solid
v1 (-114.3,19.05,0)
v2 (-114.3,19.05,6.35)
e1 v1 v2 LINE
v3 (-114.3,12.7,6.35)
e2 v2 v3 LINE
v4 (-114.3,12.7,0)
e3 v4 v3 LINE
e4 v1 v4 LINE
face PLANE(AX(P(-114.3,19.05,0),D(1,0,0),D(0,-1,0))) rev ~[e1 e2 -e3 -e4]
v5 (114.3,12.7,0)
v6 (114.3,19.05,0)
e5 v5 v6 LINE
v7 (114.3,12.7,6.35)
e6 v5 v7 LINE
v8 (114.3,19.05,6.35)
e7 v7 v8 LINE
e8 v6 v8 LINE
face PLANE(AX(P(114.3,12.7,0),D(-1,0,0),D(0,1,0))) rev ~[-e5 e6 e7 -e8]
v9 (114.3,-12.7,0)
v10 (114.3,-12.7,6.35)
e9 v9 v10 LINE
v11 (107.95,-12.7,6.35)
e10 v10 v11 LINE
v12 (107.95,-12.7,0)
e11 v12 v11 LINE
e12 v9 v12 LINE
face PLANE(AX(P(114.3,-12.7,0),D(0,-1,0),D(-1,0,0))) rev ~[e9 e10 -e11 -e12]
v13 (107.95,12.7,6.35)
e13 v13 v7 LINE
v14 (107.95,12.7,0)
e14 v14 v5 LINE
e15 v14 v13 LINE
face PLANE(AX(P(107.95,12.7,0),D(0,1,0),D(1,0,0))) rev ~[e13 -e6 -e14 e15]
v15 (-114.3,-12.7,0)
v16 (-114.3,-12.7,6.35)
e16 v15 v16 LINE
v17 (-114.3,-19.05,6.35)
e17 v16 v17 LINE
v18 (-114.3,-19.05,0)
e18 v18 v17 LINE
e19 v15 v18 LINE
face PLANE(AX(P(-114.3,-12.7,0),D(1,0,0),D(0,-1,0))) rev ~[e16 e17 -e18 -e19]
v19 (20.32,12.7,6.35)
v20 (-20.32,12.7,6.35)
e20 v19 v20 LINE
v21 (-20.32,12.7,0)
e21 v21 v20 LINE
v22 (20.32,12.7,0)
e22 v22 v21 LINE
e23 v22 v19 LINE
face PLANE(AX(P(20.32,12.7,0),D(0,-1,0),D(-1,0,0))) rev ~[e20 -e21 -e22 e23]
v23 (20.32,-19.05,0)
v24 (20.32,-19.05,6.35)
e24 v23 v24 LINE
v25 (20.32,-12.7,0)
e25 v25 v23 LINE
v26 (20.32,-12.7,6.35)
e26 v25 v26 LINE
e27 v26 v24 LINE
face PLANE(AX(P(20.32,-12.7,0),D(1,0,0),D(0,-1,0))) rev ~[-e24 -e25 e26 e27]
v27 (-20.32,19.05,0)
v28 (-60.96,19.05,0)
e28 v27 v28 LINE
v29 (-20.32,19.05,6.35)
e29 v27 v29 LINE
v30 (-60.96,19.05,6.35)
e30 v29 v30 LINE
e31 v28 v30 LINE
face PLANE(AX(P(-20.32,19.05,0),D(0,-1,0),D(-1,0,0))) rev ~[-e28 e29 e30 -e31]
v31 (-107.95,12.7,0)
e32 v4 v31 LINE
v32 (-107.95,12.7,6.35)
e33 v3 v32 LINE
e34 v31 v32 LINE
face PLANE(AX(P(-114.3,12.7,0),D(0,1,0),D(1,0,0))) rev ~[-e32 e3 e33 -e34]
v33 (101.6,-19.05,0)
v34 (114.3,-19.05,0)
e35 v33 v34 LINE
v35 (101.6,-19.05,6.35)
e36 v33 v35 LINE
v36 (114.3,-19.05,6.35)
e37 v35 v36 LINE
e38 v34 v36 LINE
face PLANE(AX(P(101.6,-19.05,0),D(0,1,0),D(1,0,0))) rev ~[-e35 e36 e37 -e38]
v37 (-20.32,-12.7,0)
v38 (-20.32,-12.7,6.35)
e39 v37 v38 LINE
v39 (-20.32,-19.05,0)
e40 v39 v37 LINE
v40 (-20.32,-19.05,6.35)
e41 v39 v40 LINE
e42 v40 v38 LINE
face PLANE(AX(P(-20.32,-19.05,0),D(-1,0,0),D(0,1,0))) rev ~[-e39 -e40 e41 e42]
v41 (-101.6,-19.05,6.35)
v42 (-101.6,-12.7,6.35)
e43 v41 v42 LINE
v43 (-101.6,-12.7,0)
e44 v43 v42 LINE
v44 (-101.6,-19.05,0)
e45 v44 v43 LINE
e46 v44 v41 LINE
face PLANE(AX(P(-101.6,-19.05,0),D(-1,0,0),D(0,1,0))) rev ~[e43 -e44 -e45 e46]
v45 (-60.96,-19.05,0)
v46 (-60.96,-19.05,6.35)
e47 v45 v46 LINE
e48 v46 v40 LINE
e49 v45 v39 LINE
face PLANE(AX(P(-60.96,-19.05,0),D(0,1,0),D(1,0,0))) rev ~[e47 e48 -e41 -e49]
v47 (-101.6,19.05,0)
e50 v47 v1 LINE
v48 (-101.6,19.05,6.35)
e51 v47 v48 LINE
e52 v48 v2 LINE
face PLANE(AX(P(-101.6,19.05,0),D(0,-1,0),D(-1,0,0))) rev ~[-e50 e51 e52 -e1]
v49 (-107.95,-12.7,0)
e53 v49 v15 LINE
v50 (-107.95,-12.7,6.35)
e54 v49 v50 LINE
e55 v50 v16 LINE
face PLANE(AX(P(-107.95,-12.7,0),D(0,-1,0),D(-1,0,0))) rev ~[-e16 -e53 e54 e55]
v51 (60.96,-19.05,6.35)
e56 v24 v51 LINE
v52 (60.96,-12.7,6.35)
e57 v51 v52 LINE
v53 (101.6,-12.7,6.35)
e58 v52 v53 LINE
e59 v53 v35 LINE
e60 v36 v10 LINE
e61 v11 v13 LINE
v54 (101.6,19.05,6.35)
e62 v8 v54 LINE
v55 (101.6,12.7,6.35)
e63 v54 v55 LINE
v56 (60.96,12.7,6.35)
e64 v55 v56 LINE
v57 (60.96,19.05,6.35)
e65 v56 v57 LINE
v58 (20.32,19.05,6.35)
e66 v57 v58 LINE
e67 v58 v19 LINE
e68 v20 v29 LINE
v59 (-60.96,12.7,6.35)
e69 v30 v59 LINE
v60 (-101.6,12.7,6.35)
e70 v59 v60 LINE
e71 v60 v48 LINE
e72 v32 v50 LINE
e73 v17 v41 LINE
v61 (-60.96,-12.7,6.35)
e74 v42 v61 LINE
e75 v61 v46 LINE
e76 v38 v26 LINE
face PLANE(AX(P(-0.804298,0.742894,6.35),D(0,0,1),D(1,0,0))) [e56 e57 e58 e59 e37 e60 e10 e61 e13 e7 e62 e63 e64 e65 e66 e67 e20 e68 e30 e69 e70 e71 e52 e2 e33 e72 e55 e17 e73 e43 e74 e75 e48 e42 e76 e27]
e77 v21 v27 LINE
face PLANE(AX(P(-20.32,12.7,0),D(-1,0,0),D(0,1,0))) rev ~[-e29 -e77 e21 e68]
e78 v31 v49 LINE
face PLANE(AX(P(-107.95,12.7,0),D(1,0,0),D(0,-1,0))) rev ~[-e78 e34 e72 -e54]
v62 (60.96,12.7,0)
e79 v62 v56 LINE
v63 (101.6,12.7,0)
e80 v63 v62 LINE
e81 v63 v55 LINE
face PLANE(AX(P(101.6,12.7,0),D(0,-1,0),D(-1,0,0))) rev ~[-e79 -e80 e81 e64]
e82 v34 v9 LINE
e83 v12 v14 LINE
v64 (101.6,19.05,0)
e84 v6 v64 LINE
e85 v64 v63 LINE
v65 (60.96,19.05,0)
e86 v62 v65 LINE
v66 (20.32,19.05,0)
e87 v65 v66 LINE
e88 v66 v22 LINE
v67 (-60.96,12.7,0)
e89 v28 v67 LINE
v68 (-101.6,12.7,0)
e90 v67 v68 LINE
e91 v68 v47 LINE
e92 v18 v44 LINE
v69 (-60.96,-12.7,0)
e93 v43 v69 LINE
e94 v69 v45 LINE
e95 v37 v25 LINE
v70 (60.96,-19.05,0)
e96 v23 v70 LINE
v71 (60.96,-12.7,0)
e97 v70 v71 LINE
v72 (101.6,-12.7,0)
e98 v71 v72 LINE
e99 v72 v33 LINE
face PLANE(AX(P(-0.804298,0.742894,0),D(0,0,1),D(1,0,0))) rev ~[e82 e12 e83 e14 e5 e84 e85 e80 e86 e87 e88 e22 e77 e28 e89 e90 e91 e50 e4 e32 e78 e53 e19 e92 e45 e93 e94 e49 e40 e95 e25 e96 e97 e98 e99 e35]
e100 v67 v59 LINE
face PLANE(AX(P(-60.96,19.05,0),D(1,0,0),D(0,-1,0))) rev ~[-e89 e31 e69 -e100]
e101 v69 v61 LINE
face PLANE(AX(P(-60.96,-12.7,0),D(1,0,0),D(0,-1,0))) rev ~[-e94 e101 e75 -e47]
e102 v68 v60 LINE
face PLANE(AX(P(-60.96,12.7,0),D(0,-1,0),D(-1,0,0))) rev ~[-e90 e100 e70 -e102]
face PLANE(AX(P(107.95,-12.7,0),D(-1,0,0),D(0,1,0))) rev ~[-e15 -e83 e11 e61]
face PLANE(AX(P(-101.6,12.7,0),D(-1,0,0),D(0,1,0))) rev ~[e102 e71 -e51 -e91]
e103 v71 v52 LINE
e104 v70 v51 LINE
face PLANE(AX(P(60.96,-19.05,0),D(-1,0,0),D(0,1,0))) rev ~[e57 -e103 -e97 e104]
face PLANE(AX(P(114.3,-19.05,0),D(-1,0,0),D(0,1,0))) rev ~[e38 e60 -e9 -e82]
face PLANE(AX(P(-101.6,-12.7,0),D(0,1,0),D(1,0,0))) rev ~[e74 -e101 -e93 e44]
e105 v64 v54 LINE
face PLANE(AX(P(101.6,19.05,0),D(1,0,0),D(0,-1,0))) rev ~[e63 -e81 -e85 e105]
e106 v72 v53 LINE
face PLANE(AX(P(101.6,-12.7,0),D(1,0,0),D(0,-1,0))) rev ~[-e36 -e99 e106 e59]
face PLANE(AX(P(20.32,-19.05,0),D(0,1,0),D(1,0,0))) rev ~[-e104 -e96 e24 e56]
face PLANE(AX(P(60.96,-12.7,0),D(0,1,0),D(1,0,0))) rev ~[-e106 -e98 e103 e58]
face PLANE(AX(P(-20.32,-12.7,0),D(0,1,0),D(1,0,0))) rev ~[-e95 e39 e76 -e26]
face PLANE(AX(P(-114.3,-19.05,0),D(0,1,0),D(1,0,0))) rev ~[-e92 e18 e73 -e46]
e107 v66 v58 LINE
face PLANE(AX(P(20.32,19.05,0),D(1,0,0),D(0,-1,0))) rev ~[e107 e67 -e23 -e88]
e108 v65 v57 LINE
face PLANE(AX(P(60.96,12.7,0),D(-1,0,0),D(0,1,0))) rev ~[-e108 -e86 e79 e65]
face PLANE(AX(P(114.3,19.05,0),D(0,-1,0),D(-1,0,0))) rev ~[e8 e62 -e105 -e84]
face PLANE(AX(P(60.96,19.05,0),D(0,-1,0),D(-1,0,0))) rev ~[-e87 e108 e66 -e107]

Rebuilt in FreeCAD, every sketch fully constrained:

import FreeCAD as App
import Part
import Sketcher
Q = App.Units.Quantity

doc = App.newDocument("Part")
body = doc.addObject("PartDesign::Body", "Body")

# Sketch on XY plane
sketch1 = doc.addObject("Sketcher::SketchObject", "Sketch")
body.addObject(sketch1)
sketch1.AttachmentSupport = (doc.XY_Plane, [""])
sketch1.MapMode = "FlatFace"
sketch1.addGeometry(Part.LineSegment(App.Vector(-102, 19, 0), App.Vector(-114, 19, 0)), False)
sketch1.addGeometry(Part.LineSegment(App.Vector(-114, 19, 0), App.Vector(-114, 13, 0)), False)
sketch1.addGeometry(Part.LineSegment(App.Vector(-114, 13, 0), App.Vector(-108, 13, 0)), False)
sketch1.addGeometry(Part.LineSegment(App.Vector(-108, 13, 0), App.Vector(-108, -13, 0)), False)
sketch1.addGeometry(Part.LineSegment(App.Vector(-108, -13, 0), App.Vector(-114, -13, 0)), False)
sketch1.addGeometry(Part.LineSegment(App.Vector(-114, -13, 0), App.Vector(-114, -19, 0)), False)
sketch1.addGeometry(Part.LineSegment(App.Vector(-114, -19, 0), App.Vector(-102, -19, 0)), False)
sketch1.addGeometry(Part.LineSegment(App.Vector(-102, -19, 0), App.Vector(-102, -13, 0)), False)
sketch1.addGeometry(Part.LineSegment(App.Vector(-102, -13, 0), App.Vector(-61, -13, 0)), False)
sketch1.addGeometry(Part.LineSegment(App.Vector(-61, -13, 0), App.Vector(-61, -19, 0)), False)
sketch1.addGeometry(Part.LineSegment(App.Vector(-61, -19, 0), App.Vector(-20, -19, 0)), False)
sketch1.addGeometry(Part.LineSegment(App.Vector(-20, -19, 0), App.Vector(-20, -13, 0)), False)
sketch1.addGeometry(Part.LineSegment(App.Vector(-20, -13, 0), App.Vector(20, -13, 0)), False)
sketch1.addGeometry(Part.LineSegment(App.Vector(20, -13, 0), App.Vector(20, -19, 0)), False)
sketch1.addGeometry(Part.LineSegment(App.Vector(20, -19, 0), App.Vector(61, -19, 0)), False)
sketch1.addGeometry(Part.LineSegment(App.Vector(61, -19, 0), App.Vector(61, -13, 0)), False)
sketch1.addGeometry(Part.LineSegment(App.Vector(61, -13, 0), App.Vector(102, -13, 0)), False)
sketch1.addGeometry(Part.LineSegment(App.Vector(102, -13, 0), App.Vector(102, -19, 0)), False)
sketch1.addGeometry(Part.LineSegment(App.Vector(102, -19, 0), App.Vector(114, -19, 0)), False)
sketch1.addGeometry(Part.LineSegment(App.Vector(114, -19, 0), App.Vector(114, -13, 0)), False)
sketch1.addGeometry(Part.LineSegment(App.Vector(114, -13, 0), App.Vector(108, -13, 0)), False)
sketch1.addGeometry(Part.LineSegment(App.Vector(108, -13, 0), App.Vector(108, 13, 0)), False)
sketch1.addGeometry(Part.LineSegment(App.Vector(108, 13, 0), App.Vector(114, 13, 0)), False)
sketch1.addGeometry(Part.LineSegment(App.Vector(114, 13, 0), App.Vector(114, 19, 0)), False)
sketch1.addGeometry(Part.LineSegment(App.Vector(114, 19, 0), App.Vector(102, 19, 0)), False)
sketch1.addGeometry(Part.LineSegment(App.Vector(102, 19, 0), App.Vector(102, 13, 0)), False)
sketch1.addGeometry(Part.LineSegment(App.Vector(102, 13, 0), App.Vector(61, 13, 0)), False)
sketch1.addGeometry(Part.LineSegment(App.Vector(61, 13, 0), App.Vector(61, 19, 0)), False)
sketch1.addGeometry(Part.LineSegment(App.Vector(61, 19, 0), App.Vector(20, 19, 0)), False)
sketch1.addGeometry(Part.LineSegment(App.Vector(20, 19, 0), App.Vector(20, 13, 0)), False)
sketch1.addGeometry(Part.LineSegment(App.Vector(20, 13, 0), App.Vector(-20, 13, 0)), False)
sketch1.addGeometry(Part.LineSegment(App.Vector(-20, 13, 0), App.Vector(-20, 19, 0)), False)
sketch1.addGeometry(Part.LineSegment(App.Vector(-20, 19, 0), App.Vector(-61, 19, 0)), False)
sketch1.addGeometry(Part.LineSegment(App.Vector(-61, 19, 0), App.Vector(-61, 13, 0)), False)
sketch1.addGeometry(Part.LineSegment(App.Vector(-61, 13, 0), App.Vector(-102, 13, 0)), False)
sketch1.addGeometry(Part.LineSegment(App.Vector(-102, 13, 0), App.Vector(-102, 19, 0)), False)
sketch1.addConstraint(Sketcher.Constraint("Coincident", 0, 2, 1, 1))
sketch1.addConstraint(Sketcher.Constraint("Coincident", 1, 2, 2, 1))
sketch1.addConstraint(Sketcher.Constraint("Coincident", 2, 2, 3, 1))
sketch1.addConstraint(Sketcher.Constraint("Coincident", 3, 2, 4, 1))
sketch1.addConstraint(Sketcher.Constraint("Coincident", 4, 2, 5, 1))
sketch1.addConstraint(Sketcher.Constraint("Coincident", 5, 2, 6, 1))
sketch1.addConstraint(Sketcher.Constraint("Coincident", 6, 2, 7, 1))
sketch1.addConstraint(Sketcher.Constraint("Coincident", 7, 2, 8, 1))
sketch1.addConstraint(Sketcher.Constraint("Coincident", 8, 2, 9, 1))
sketch1.addConstraint(Sketcher.Constraint("Coincident", 9, 2, 10, 1))
sketch1.addConstraint(Sketcher.Constraint("Coincident", 10, 2, 11, 1))
sketch1.addConstraint(Sketcher.Constraint("Coincident", 11, 2, 12, 1))
sketch1.addConstraint(Sketcher.Constraint("Coincident", 12, 2, 13, 1))
sketch1.addConstraint(Sketcher.Constraint("Coincident", 13, 2, 14, 1))
sketch1.addConstraint(Sketcher.Constraint("Coincident", 14, 2, 15, 1))
sketch1.addConstraint(Sketcher.Constraint("Coincident", 15, 2, 16, 1))
sketch1.addConstraint(Sketcher.Constraint("Coincident", 16, 2, 17, 1))
sketch1.addConstraint(Sketcher.Constraint("Coincident", 17, 2, 18, 1))
sketch1.addConstraint(Sketcher.Constraint("Coincident", 18, 2, 19, 1))
sketch1.addConstraint(Sketcher.Constraint("Coincident", 19, 2, 20, 1))
sketch1.addConstraint(Sketcher.Constraint("Coincident", 20, 2, 21, 1))
sketch1.addConstraint(Sketcher.Constraint("Coincident", 21, 2, 22, 1))
sketch1.addConstraint(Sketcher.Constraint("Coincident", 22, 2, 23, 1))
sketch1.addConstraint(Sketcher.Constraint("Coincident", 23, 2, 24, 1))
sketch1.addConstraint(Sketcher.Constraint("Coincident", 24, 2, 25, 1))
sketch1.addConstraint(Sketcher.Constraint("Coincident", 25, 2, 26, 1))
sketch1.addConstraint(Sketcher.Constraint("Coincident", 26, 2, 27, 1))
sketch1.addConstraint(Sketcher.Constraint("Coincident", 27, 2, 28, 1))
sketch1.addConstraint(Sketcher.Constraint("Coincident", 28, 2, 29, 1))
sketch1.addConstraint(Sketcher.Constraint("Coincident", 29, 2, 30, 1))
sketch1.addConstraint(Sketcher.Constraint("Coincident", 30, 2, 31, 1))
sketch1.addConstraint(Sketcher.Constraint("Coincident", 31, 2, 32, 1))
sketch1.addConstraint(Sketcher.Constraint("Coincident", 32, 2, 33, 1))
sketch1.addConstraint(Sketcher.Constraint("Coincident", 33, 2, 34, 1))
sketch1.addConstraint(Sketcher.Constraint("Coincident", 34, 2, 35, 1))
sketch1.addConstraint(Sketcher.Constraint("Coincident", 35, 2, 0, 1))
sketch1.addConstraint(Sketcher.Constraint("Horizontal", 0))
sketch1.addConstraint(Sketcher.Constraint("Vertical", 1))
sketch1.addConstraint(Sketcher.Constraint("Horizontal", 2))
sketch1.addConstraint(Sketcher.Constraint("Vertical", 3))
sketch1.addConstraint(Sketcher.Constraint("Horizontal", 4))
sketch1.addConstraint(Sketcher.Constraint("Vertical", 5))
sketch1.addConstraint(Sketcher.Constraint("Horizontal", 6))
sketch1.addConstraint(Sketcher.Constraint("Vertical", 7))
sketch1.addConstraint(Sketcher.Constraint("Horizontal", 8))
sketch1.addConstraint(Sketcher.Constraint("Vertical", 9))
sketch1.addConstraint(Sketcher.Constraint("Horizontal", 10))
sketch1.addConstraint(Sketcher.Constraint("Vertical", 11))
sketch1.addConstraint(Sketcher.Constraint("Horizontal", 12))
sketch1.addConstraint(Sketcher.Constraint("Vertical", 13))
sketch1.addConstraint(Sketcher.Constraint("Horizontal", 14))
sketch1.addConstraint(Sketcher.Constraint("Vertical", 15))
sketch1.addConstraint(Sketcher.Constraint("Horizontal", 16))
sketch1.addConstraint(Sketcher.Constraint("Vertical", 17))
sketch1.addConstraint(Sketcher.Constraint("Horizontal", 18))
sketch1.addConstraint(Sketcher.Constraint("Vertical", 19))
sketch1.addConstraint(Sketcher.Constraint("Horizontal", 20))
sketch1.addConstraint(Sketcher.Constraint("Vertical", 21))
sketch1.addConstraint(Sketcher.Constraint("Horizontal", 22))
sketch1.addConstraint(Sketcher.Constraint("Vertical", 23))
sketch1.addConstraint(Sketcher.Constraint("Horizontal", 24))
sketch1.addConstraint(Sketcher.Constraint("Vertical", 25))
sketch1.addConstraint(Sketcher.Constraint("Horizontal", 26))
sketch1.addConstraint(Sketcher.Constraint("Vertical", 27))
sketch1.addConstraint(Sketcher.Constraint("Horizontal", 28))
sketch1.addConstraint(Sketcher.Constraint("Vertical", 29))
sketch1.addConstraint(Sketcher.Constraint("Horizontal", 30))
sketch1.addConstraint(Sketcher.Constraint("Vertical", 31))
sketch1.addConstraint(Sketcher.Constraint("Horizontal", 32))
sketch1.addConstraint(Sketcher.Constraint("Vertical", 33))
sketch1.addConstraint(Sketcher.Constraint("Horizontal", 34))
sketch1.addConstraint(Sketcher.Constraint("Vertical", 35))
sketch1.addConstraint(Sketcher.Constraint("Symmetric", 0, 2, 18, 2, -1, 1))
sketch1.addConstraint(Sketcher.Constraint("Symmetric", 2, 2, 20, 2, -1, 1))
sketch1.addConstraint(Sketcher.Constraint("Symmetric", 4, 2, 22, 2, -1, 1))
sketch1.addConstraint(Sketcher.Constraint("Symmetric", 6, 2, 24, 2, -1, 1))
sketch1.addConstraint(Sketcher.Constraint("Symmetric", 8, 2, 26, 2, -1, 1))
sketch1.addConstraint(Sketcher.Constraint("Symmetric", 10, 2, 28, 2, -1, 1))
sketch1.addConstraint(Sketcher.Constraint("Symmetric", 12, 2, 30, 2, -1, 1))
sketch1.addConstraint(Sketcher.Constraint("Symmetric", 14, 2, 32, 2, -1, 1))
sketch1.addConstraint(Sketcher.Constraint("Symmetric", 16, 2, 34, 2, -1, 1))
sketch1.addConstraint(Sketcher.Constraint("Symmetric", 10, 2, 13, 2, -2))
sketch1.addConstraint(Sketcher.Constraint("Symmetric", 8, 2, 15, 2, -2))
sketch1.addConstraint(Sketcher.Constraint("Symmetric", 6, 2, 17, 2, -2))
sketch1.addConstraint(Sketcher.Constraint("Symmetric", 4, 2, 19, 2, -2))
sketch1.addConstraint(Sketcher.Constraint("Horizontal", 4, 2, 7, 2))
sketch1.addConstraint(Sketcher.Constraint("Horizontal", 6, 2, 9, 2))
sketch1.addConstraint(Sketcher.Constraint("Horizontal", 8, 2, 11, 2))
sketch1.addConstraint(Sketcher.Constraint("Equal", 8, 10))
sketch1.addConstraint(Sketcher.Constraint("Equal", 10, 12))
sketch1.addConstraint(Sketcher.Constraint("Equal", 22, 1))
sketch1.addConstraint(Sketcher.Constraint("DistanceY", 3, 2, 3, 1, Q("1 in")))
sketch1.addConstraint(Sketcher.Constraint("DistanceX", 0, 2, 0, 1, Q("0.5 in")))
sketch1.addConstraint(Sketcher.Constraint("DistanceX", 8, 1, 8, 2, Q("1.6 in")))
sketch1.addConstraint(Sketcher.Constraint("DistanceX", 2, 1, 2, 2, Q("0.25 in")))
pad1 = doc.addObject("PartDesign::Pad", "Pad")
body.addObject(pad1)
pad1.Profile = sketch1
pad1.Length = Q("0.25 in")

doc.recompute()
